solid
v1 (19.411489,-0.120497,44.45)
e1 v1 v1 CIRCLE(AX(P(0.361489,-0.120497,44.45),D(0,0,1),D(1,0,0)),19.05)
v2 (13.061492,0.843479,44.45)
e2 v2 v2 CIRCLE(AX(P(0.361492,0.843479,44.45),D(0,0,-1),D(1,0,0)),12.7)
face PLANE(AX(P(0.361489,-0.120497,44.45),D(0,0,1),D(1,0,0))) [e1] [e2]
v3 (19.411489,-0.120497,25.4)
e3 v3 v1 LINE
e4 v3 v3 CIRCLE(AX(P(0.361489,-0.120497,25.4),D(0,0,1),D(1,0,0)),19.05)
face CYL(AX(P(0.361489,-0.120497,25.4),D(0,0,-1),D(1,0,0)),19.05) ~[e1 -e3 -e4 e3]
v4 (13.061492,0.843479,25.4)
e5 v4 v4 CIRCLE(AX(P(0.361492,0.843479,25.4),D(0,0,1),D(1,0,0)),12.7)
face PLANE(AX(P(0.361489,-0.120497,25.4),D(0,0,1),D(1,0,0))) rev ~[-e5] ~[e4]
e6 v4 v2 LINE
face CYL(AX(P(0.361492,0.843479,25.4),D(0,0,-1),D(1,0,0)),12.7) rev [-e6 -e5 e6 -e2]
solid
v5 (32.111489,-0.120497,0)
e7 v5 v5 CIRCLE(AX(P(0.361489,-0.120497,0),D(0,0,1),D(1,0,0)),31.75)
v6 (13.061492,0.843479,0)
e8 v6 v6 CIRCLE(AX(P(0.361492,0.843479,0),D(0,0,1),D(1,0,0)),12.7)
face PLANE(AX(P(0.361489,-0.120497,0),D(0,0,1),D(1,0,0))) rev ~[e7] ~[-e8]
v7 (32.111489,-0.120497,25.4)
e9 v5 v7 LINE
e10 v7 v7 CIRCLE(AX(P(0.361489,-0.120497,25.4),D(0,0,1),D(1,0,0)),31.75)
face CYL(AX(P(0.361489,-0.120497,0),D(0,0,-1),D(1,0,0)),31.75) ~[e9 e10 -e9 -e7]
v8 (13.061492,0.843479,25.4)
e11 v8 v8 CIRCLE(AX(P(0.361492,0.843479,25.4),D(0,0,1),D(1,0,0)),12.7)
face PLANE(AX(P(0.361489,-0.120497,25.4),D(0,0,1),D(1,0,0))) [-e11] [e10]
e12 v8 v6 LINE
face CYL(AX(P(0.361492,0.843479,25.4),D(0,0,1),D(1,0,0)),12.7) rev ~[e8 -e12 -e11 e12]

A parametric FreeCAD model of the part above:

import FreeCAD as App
import Part
import Sketcher
from FreeCAD import Vector
Q = App.Units.Quantity

doc = App.newDocument("Part")
body = doc.addObject("PartDesign::Body", "Body")

# Sketch on XY plane
sketch1 = doc.addObject("Sketcher::SketchObject", "Sketch")
body.addObject(sketch1)
sketch1.AttachmentSupport = (doc.XY_Plane, [""])
sketch1.MapMode = "FlatFace"
sketch1.addGeometry(Part.Circle(Vector(0, 0, 0), Vector(0, 0, 1), 32), False)
sketch1.addConstraint([
    Sketcher.Constraint("Diameter", 0, Q("2.5 in")),
    Sketcher.Constraint("DistanceX", -1, 1, 0, 3, 0.361489),
    Sketcher.Constraint("DistanceY", 0, 3, -1, 1, 0.120497),
])
pad1 = doc.addObject("PartDesign::Pad", "Pad")
body.addObject(pad1)
pad1.Profile = sketch1
pad1.Length = Q("1 in")

# Sketch on XY plane
sketch2 = doc.addObject("Sketcher::SketchObject", "Sketch001")
body.addObject(sketch2)
sketch2.AttachmentSupport = (doc.XY_Plane, [""])
sketch2.MapMode = "FlatFace"
sketch2.AttachmentOffset = App.Placement(Vector(0, 0, 1 * 25.4), App.Rotation())
sketch2.addGeometry(Part.Circle(Vector(0, 1, 0), Vector(0, 0, 1), 13), False)
sketch2.addConstraint([
    Sketcher.Constraint("Diameter", 0, Q("1 in")),
    Sketcher.Constraint("DistanceY", -1, 1, 0, 3, 0.843479),
    Sketcher.Constraint("DistanceX", -1, 1, 0, 3, 0.361492),
])
pocket1 = doc.addObject("PartDesign::Pocket", "Pocket")
body.addObject(pocket1)
pocket1.Profile = sketch2
pocket1.Length = Q("1 in")
body2 = doc.addObject("PartDesign::Body", "Body001")

# Sketch on XY plane
sketch3 = doc.addObject("Sketcher::SketchObject", "Sketch002")
body2.addObject(sketch3)
sketch3.AttachmentSupport = (doc.getObject("XY_Plane001"), [""])
sketch3.MapMode = "FlatFace"
sketch3.AttachmentOffset = App.Placement(Vector(0, 0, 1 * 25.4), App.Rotation())
sketch3.addGeometry(Part.Circle(Vector(0, 0, 0), Vector(0, 0, 1), 19), False)
sketch3.addConstraint([
    Sketcher.Constraint("Diameter", 0, Q("1.5 in")),
    Sketcher.Constraint("DistanceX", -1, 1, 0, 3, 0.361489),
    Sketcher.Constraint("DistanceY", 0, 3, -1, 1, 0.120497),
])
pad2 = doc.addObject("PartDesign::Pad", "Pad001")
body2.addObject(pad2)
pad2.Profile = sketch3
pad2.Length = Q("0.75 in")

# Sketch on XY plane
sketch4 = doc.addObject("Sketcher::SketchObject", "Sketch003")
body2.addObject(sketch4)
sketch4.AttachmentSupport = (doc.getObject("XY_Plane001"), [""])
sketch4.MapMode = "FlatFace"
sketch4.AttachmentOffset = App.Placement(Vector(0, 0, 1 * 25.4), App.Rotation())
sketch4.addGeometry(Part.Circle(Vector(0, 1, 0), Vector(0, 0, 1), 13), False)
sketch4.addConstraint([
    Sketcher.Constraint("Diameter", 0, Q("1 in")),
    Sketcher.Constraint("DistanceY", -1, 1, 0, 3, 0.843479),
    Sketcher.Constraint("DistanceX", -1, 1, 0, 3, 0.361492),
])
pocket2 = doc.addObject("PartDesign::Pocket", "Pocket001")
body2.addObject(pocket2)
pocket2.Profile = sketch4
pocket2.Length = Q("1 in")
pocket2.Reversed = True

doc.recompute()
